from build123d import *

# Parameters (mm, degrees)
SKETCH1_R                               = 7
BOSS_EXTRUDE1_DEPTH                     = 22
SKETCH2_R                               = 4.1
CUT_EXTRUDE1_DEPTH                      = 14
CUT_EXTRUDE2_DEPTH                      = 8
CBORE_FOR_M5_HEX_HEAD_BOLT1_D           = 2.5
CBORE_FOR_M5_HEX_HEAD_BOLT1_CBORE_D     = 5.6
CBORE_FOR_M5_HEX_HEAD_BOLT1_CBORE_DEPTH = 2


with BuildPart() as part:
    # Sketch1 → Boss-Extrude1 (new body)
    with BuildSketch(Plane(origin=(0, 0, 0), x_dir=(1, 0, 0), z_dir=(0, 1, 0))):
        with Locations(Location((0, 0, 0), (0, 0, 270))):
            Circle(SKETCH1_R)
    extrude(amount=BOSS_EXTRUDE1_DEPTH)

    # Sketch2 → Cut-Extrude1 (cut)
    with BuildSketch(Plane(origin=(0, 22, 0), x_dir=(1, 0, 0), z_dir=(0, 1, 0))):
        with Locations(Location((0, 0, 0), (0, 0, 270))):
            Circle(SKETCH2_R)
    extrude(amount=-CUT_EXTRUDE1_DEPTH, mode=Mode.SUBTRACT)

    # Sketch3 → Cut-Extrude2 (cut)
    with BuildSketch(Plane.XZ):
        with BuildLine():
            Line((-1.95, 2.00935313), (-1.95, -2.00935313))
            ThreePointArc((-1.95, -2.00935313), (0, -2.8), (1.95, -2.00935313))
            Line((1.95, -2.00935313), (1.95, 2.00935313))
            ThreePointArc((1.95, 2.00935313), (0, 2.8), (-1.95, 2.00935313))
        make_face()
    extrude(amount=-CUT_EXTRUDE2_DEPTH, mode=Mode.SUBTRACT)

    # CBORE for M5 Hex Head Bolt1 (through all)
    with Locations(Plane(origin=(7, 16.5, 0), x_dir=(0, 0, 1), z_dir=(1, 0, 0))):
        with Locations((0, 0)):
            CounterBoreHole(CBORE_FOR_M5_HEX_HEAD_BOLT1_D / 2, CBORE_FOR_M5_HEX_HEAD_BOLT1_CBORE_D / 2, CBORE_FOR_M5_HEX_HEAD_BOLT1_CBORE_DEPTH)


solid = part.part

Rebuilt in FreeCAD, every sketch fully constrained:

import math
import FreeCAD as App
import Part
import Sketcher
Q = App.Units.Quantity

doc = App.newDocument("Part")
body = doc.addObject("PartDesign::Body", "Body")

# Sketch on XZ plane
sketch1 = doc.addObject("Sketcher::SketchObject", "Sketch")
body.addObject(sketch1)
sketch1.AttachmentSupport = (doc.XZ_Plane, [""])
sketch1.MapMode = "FlatFace"
sketch1.addGeometry(Part.Circle(App.Vector(0, 0, 0), App.Vector(0, 0, 1), 7), False)
sketch1.addConstraint(Sketcher.Constraint("Coincident", 0, 3, -1, 1))
sketch1.addConstraint(Sketcher.Constraint("Diameter", 0, Q("14 mm")))
pad1 = doc.addObject("PartDesign::Pad", "Pad")
body.addObject(pad1)
pad1.Profile = sketch1
pad1.Length = 22
pad1.Reversed = True

# Sketch on XZ plane
sketch2 = doc.addObject("Sketcher::SketchObject", "Sketch001")
body.addObject(sketch2)
sketch2.AttachmentSupport = (doc.XZ_Plane, [""])
sketch2.MapMode = "FlatFace"
sketch2.AttachmentOffset = App.Placement(App.Vector(0, 0, -22), App.Rotation())
sketch2.addGeometry(Part.Circle(App.Vector(0, 0, 0), App.Vector(0, 0, 1), 4.1), False)
sketch2.addConstraint(Sketcher.Constraint("Coincident", 0, 3, -1, 1))
sketch2.addConstraint(Sketcher.Constraint("Diameter", 0, Q("8.2 mm")))
pocket1 = doc.addObject("PartDesign::Pocket", "Pocket")
body.addObject(pocket1)
pocket1.Profile = sketch2
pocket1.Length = 14
pocket1.Reversed = True

# Sketch on XZ plane
sketch3 = doc.addObject("Sketcher::SketchObject", "Sketch002")
body.addObject(sketch3)
sketch3.AttachmentSupport = (doc.XZ_Plane, [""])
sketch3.MapMode = "FlatFace"
sketch3.addGeometry(Part.LineSegment(App.Vector(-1.95, 2.009353, 0), App.Vector(-1.95, -2.009353, 0)), False)
sketch3.addGeometry(Part.ArcOfCircle(Part.Circle(App.Vector(0, 0, 0), App.Vector(0, 0, 1), 2.8), math.radians(-134.141165), math.radians(-45.858835)), False)
sketch3.addGeometry(Part.LineSegment(App.Vector(1.95, -2.009353, 0), App.Vector(1.95, 2.009353, 0)), False)
sketch3.addGeometry(Part.ArcOfCircle(Part.Circle(App.Vector(0, 0, 0), App.Vector(0, 0, 1), 2.8), math.radians(45.858835), math.radians(134.141165)), False)
sketch3.addConstraint(Sketcher.Constraint("Coincident", 0, 2, 1, 1))
sketch3.addConstraint(Sketcher.Constraint("Coincident", 1, 2, 2, 1))
sketch3.addConstraint(Sketcher.Constraint("Coincident", 2, 2, 3, 1))
sketch3.addConstraint(Sketcher.Constraint("Coincident", 3, 2, 0, 1))
sketch3.addConstraint(Sketcher.Constraint("Vertical", 0))
sketch3.addConstraint(Sketcher.Constraint("Vertical", 2))
sketch3.addConstraint(Sketcher.Constraint("Coincident", 1, 3, -1, 1))
sketch3.addConstraint(Sketcher.Constraint("Coincident", 3, 3, -1, 1))
sketch3.addConstraint(Sketcher.Constraint("Equal", 1, 3))
sketch3.addConstraint(Sketcher.Constraint("Horizontal", 0, 2, 1, 2))
sketch3.addConstraint(Sketcher.Constraint("Radius", 1, Q("2.8 mm")))
sketch3.addConstraint(Sketcher.Constraint("DistanceX", 0, 2, 1, 2, Q("3.9 mm")))
pocket2 = doc.addObject("PartDesign::Pocket", "Pocket001")
body.addObject(pocket2)
pocket2.Profile = sketch3
pocket2.Length = 8

# Sketch on YZ plane
sketch4 = doc.addObject("Sketcher::SketchObject", "Sketch003")
body.addObject(sketch4)
sketch4.AttachmentSupport = (doc.YZ_Plane, [""])
sketch4.MapMode = "FlatFace"
sketch4.AttachmentOffset = App.Placement(App.Vector(0, 0, 7), App.Rotation())
sketch4.addGeometry(Part.Circle(App.Vector(16.5, 0, 0), App.Vector(0, 0, 1), 1.25), False)
sketch4.addConstraint(Sketcher.Constraint("PointOnObject", 0, 3, -1))
sketch4.addConstraint(Sketcher.Constraint("Diameter", 0, Q("2.5 mm")))
sketch4.addConstraint(Sketcher.Constraint("DistanceX", -1, 1, 0, 3, Q("16.5 mm")))
doc.recompute()
hole = doc.addObject("PartDesign::Hole", "Hole")
body.addObject(hole)
hole.Profile = sketch4
hole.ThreadType = "None"
hole.Diameter = 2.5
hole.DepthType = "ThroughAll"
hole.HoleCutType = "Counterbore"
hole.HoleCutDiameter = 5.6
hole.HoleCutDepth = 2

doc.recompute()
